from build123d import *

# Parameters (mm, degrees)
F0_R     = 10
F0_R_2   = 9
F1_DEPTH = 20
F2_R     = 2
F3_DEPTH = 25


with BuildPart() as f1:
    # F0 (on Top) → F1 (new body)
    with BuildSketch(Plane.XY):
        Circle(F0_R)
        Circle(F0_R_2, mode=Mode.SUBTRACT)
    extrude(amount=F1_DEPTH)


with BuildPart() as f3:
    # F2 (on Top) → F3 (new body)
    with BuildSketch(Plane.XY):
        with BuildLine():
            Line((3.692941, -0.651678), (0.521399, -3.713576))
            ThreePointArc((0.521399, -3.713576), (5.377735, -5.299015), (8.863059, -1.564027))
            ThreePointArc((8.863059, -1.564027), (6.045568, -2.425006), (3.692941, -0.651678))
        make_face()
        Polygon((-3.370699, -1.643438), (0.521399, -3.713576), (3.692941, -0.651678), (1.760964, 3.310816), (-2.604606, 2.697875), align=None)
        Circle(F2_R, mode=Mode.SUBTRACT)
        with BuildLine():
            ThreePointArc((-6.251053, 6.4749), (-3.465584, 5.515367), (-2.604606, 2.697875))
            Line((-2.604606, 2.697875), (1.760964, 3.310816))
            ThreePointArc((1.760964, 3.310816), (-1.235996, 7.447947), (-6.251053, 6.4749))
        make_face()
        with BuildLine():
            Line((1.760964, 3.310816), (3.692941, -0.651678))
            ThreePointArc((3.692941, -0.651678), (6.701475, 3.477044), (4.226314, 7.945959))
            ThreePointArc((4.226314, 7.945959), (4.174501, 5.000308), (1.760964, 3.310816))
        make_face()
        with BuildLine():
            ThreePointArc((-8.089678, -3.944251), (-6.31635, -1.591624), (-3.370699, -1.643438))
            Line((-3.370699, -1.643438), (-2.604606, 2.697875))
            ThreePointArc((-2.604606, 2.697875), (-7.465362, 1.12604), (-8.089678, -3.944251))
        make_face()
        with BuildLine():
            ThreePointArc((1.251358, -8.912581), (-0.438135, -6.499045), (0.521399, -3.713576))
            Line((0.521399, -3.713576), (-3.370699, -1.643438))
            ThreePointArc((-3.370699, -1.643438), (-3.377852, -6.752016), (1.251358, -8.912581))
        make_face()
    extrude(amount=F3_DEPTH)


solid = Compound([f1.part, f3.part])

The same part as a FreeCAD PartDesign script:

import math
import FreeCAD as App
import Part
import Sketcher

V = App.Vector

doc = App.newDocument("Part")
body = doc.addObject("PartDesign::Body", "Body")

# Sketch on XY plane
sketch1 = doc.addObject("Sketcher::SketchObject", "Sketch")
body.addObject(sketch1)
sketch1.AttachmentSupport = (doc.XY_Plane, [""])
sketch1.MapMode = "FlatFace"
sketch1.addGeometry([
    Part.Circle(V(0, 0, 0), V(0, 0, 1), 10),
    Part.Circle(V(0, 0, 0), V(0, 0, 1), 9),
], False)
sketch1.addConstraint([
    Sketcher.Constraint("Coincident", 0, 3, -1, 1),
    Sketcher.Constraint("Coincident", 1, 3, -1, 1),
    Sketcher.Constraint("Diameter", 0, 20.0),
    Sketcher.Constraint("Diameter", 1, 18.0),
])
pad1 = doc.addObject("PartDesign::Pad", "Pad")
body.addObject(pad1)
pad1.Profile = sketch1
pad1.Length = 20
body2 = doc.addObject("PartDesign::Body", "Body001")

# Sketch on XY plane
sketch2 = doc.addObject("Sketcher::SketchObject", "Sketch001")
body2.addObject(sketch2)
sketch2.AttachmentSupport = (doc.getObject("XY_Plane001"), [""])
sketch2.MapMode = "FlatFace"
sketch2.addGeometry([
    Part.ArcOfCircle(Part.Circle(V(4.2, -0.7, 0), V(0, 0, 1), 4.8), math.radians(-141), math.radians(-10)),  # 0
    Part.ArcOfCircle(Part.Circle(V(6.6, 0.8, 0), V(0, 0, 1), 3.2), math.radians(-154), math.radians(-46)),  # 1
    Part.ArcOfCircle(Part.Circle(V(2, 3.8, 0), V(0, 0, 1), 4.7), math.radians(-69), math.radians(62)),  # 2
    Part.ArcOfCircle(Part.Circle(V(1.3, 6.5, 0), V(0, 0, 1), 3.2), math.radians(-82), math.radians(26)),  # 3
    Part.ArcOfCircle(Part.Circle(V(-3, 3, 0), V(0, 0, 1), 4.7), math.radians(3), math.radians(134)),  # 4
    Part.ArcOfCircle(Part.Circle(V(-5.8, 3.3, 0), V(0, 0, 1), 3.2), math.radians(-10), math.radians(98)),  # 5
    Part.ArcOfCircle(Part.Circle(V(-3.8, -1.9, 0), V(0, 0, 1), 4.8), math.radians(75), math.radians(206)),  # 6
    Part.ArcOfCircle(Part.Circle(V(-4.9, -4.5, 0), V(0, 0, 1), 3.2), math.radians(62), math.radians(170)),  # 7
    Part.ArcOfCircle(Part.Circle(V(0.6, -4.2, 0), V(0, 0, 1), 4.7), math.radians(147), math.radians(278)),  # 8
    Part.ArcOfCircle(Part.Circle(V(2.8, -6, 0), V(0, 0, 1), 3.2), math.radians(134), math.radians(242)),  # 9
    Part.Circle(V(0, 0, 0), V(0, 0, 1), 2),  # 10
], False)
sketch2.addConstraint([
    Sketcher.Constraint("Coincident", 0, 2, 1, 2),
    Sketcher.Constraint("Coincident", 1, 1, 2, 1),
    Sketcher.Constraint("Coincident", 2, 2, 3, 2),
    Sketcher.Constraint("Coincident", 3, 1, 4, 1),
    Sketcher.Constraint("Coincident", 4, 2, 5, 2),
    Sketcher.Constraint("Coincident", 5, 1, 6, 1),
    Sketcher.Constraint("Coincident", 6, 2, 7, 2),
    Sketcher.Constraint("Coincident", 7, 1, 8, 1),
    Sketcher.Constraint("Coincident", 8, 2, 9, 2),
    Sketcher.Constraint("Coincident", 9, 1, 0, 1),
    Sketcher.Constraint("Coincident", 10, 3, -1, 1),
    Sketcher.Constraint("Equal", 0, 2),
    Sketcher.Constraint("Equal", 1, 3),
    Sketcher.Constraint("Equal", 2, 4),
    Sketcher.Constraint("Equal", 3, 5),
    Sketcher.Constraint("Equal", 4, 6),
    Sketcher.Constraint("Equal", 5, 7),
    Sketcher.Constraint("Equal", 6, 8),
    Sketcher.Constraint("Equal", 7, 9),
    Sketcher.Constraint("Diameter", 10, 4.0),
    Sketcher.Constraint("Radius", 0, 4.75),
    Sketcher.Constraint("Radius", 1, 3.244678),
    Sketcher.Constraint("DistanceY", -1, 1, 4, 2, 6.4749),
    Sketcher.Constraint("DistanceX", 7, 1, -1, 1, 3.370699),
    Sketcher.Constraint("DistanceX", -1, 1, 9, 1, 0.521399),
    Sketcher.Constraint("DistanceY", 6, 3, 3, 3, 8.422502),
    Sketcher.Constraint("DistanceY", 0, 3, 1, 1, 0.047601),
    Sketcher.Constraint("DistanceX", 6, 2, 6, 3, 4.286899),
    Sketcher.Constraint("DistanceY", 9, 1, 1, 1, 3.061898),
    Sketcher.Constraint("DistanceY", 0, 3, -1, 1, 0.699279),
    Sketcher.Constraint("DistanceX", -1, 1, 1, 3, 6.60943),
    Sketcher.Constraint("DistanceX", -1, 1, 2, 3, 1.96059),
    Sketcher.Constraint("DistanceY", -1, 1, 5, 3, 3.261739),
    Sketcher.Constraint("DistanceX", 6, 3, -1, 1, 3.802779),
    Sketcher.Constraint("DistanceX", 7, 3, -1, 1, 4.89437),
    Sketcher.Constraint("DistanceX", -1, 1, 8, 3, 0.630479),
    Sketcher.Constraint("DistanceX", -1, 1, 0, 2, 8.863059),
    Sketcher.Constraint("DistanceY", -1, 1, 2, 2, 7.945959),
    Sketcher.Constraint("DistanceY", 6, 2, -1, 1, 3.944251),
    Sketcher.Constraint("DistanceX", -1, 1, 8, 2, 1.251358),
    Sketcher.Constraint("DistanceX", 4, 3, 3, 3, 4.290552),
    Sketcher.Constraint("DistanceY", 0, 3, 4, 3, 3.729262),
])
pad2 = doc.addObject("PartDesign::Pad", "Pad001")
body2.addObject(pad2)
pad2.Profile = sketch2
pad2.Length = 25

doc.recompute()
